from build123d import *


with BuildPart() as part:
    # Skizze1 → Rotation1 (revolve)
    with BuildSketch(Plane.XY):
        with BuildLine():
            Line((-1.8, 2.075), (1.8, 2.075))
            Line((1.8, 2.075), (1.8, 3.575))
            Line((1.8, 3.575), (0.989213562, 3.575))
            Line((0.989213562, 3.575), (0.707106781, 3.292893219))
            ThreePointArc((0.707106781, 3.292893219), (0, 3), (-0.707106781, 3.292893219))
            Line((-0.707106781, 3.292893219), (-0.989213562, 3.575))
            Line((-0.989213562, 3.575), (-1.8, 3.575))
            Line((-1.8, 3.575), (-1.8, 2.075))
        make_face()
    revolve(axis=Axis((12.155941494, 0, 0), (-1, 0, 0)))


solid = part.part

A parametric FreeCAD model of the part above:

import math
import FreeCAD as App
import Part
import Sketcher
from FreeCAD import Vector
Q = App.Units.Quantity

doc = App.newDocument("Part")
body = doc.addObject("PartDesign::Body", "Body")

# Sketch on XY plane
sketch1 = body.newObject("Sketcher::SketchObject", "Sketch")
sketch1.AttachmentSupport = (doc.getObject("XY_Plane"), [""])
sketch1.MapMode = "FlatFace"
sketch1.addGeometry([
    Part.LineSegment(Vector(-1.8, 2.075, 0), Vector(1.8, 2.075, 0)),  # 0
    Part.LineSegment(Vector(1.8, 2.075, 0), Vector(1.8, 3.575, 0)),  # 1
    Part.LineSegment(Vector(1.8, 3.575, 0), Vector(0.989214, 3.575, 0)),  # 2
    Part.LineSegment(Vector(0.989214, 3.575, 0), Vector(0.707107, 3.292893, 0)),  # 3
    Part.ArcOfCircle(Part.Circle(Vector(0, 4, 0), Vector(0, 0, 1), 1), math.radians(-135), math.radians(-45)),  # 4
    Part.LineSegment(Vector(-0.707107, 3.292893, 0), Vector(-0.989214, 3.575, 0)),  # 5
    Part.LineSegment(Vector(-0.989214, 3.575, 0), Vector(-1.8, 3.575, 0)),  # 6
    Part.LineSegment(Vector(-1.8, 3.575, 0), Vector(-1.8, 2.075, 0)),  # 7
], False)
sketch1.addConstraint([
    Sketcher.Constraint("Coincident", 0, 2, 1, 1),
    Sketcher.Constraint("Coincident", 1, 2, 2, 1),
    Sketcher.Constraint("Coincident", 2, 2, 3, 1),
    Sketcher.Constraint("Tangent", 3, 2, 4, 2),
    Sketcher.Constraint("Tangent", 4, 1, 5, 1),
    Sketcher.Constraint("Coincident", 5, 2, 6, 1),
    Sketcher.Constraint("Coincident", 6, 2, 7, 1),
    Sketcher.Constraint("Coincident", 7, 2, 0, 1),
    Sketcher.Constraint("Horizontal", 0),
    Sketcher.Constraint("Vertical", 1),
    Sketcher.Constraint("Horizontal", 2),
    Sketcher.Constraint("Horizontal", 6),
    Sketcher.Constraint("Vertical", 7),
    Sketcher.Constraint("Symmetric", 3, 2, 4, 1, -2),
    Sketcher.Constraint("Symmetric", 1, 2, 6, 2, -2),
    Sketcher.Constraint("Perpendicular", 3, 5),
    Sketcher.Constraint("Radius", 4, Q("1 mm")),
    Sketcher.Constraint("DistanceX", 0, 1, 0, 2, Q("3.6 mm")),
    Sketcher.Constraint("DistanceY", 1, 1, 1, 2, Q("1.5 mm")),
    Sketcher.Constraint("DistanceY", -1, 1, 4, 3, Q("4 mm")),
    Sketcher.Constraint("DistanceY", -1, 1, 0, 2, Q("2.075 mm")),
])
revolution = body.newObject("PartDesign::Revolution", "Revolution")
revolution.Profile = sketch1
revolution.ReferenceAxis = (sketch1, ["H_Axis"])
revolution.Angle = 360

doc.recompute()
